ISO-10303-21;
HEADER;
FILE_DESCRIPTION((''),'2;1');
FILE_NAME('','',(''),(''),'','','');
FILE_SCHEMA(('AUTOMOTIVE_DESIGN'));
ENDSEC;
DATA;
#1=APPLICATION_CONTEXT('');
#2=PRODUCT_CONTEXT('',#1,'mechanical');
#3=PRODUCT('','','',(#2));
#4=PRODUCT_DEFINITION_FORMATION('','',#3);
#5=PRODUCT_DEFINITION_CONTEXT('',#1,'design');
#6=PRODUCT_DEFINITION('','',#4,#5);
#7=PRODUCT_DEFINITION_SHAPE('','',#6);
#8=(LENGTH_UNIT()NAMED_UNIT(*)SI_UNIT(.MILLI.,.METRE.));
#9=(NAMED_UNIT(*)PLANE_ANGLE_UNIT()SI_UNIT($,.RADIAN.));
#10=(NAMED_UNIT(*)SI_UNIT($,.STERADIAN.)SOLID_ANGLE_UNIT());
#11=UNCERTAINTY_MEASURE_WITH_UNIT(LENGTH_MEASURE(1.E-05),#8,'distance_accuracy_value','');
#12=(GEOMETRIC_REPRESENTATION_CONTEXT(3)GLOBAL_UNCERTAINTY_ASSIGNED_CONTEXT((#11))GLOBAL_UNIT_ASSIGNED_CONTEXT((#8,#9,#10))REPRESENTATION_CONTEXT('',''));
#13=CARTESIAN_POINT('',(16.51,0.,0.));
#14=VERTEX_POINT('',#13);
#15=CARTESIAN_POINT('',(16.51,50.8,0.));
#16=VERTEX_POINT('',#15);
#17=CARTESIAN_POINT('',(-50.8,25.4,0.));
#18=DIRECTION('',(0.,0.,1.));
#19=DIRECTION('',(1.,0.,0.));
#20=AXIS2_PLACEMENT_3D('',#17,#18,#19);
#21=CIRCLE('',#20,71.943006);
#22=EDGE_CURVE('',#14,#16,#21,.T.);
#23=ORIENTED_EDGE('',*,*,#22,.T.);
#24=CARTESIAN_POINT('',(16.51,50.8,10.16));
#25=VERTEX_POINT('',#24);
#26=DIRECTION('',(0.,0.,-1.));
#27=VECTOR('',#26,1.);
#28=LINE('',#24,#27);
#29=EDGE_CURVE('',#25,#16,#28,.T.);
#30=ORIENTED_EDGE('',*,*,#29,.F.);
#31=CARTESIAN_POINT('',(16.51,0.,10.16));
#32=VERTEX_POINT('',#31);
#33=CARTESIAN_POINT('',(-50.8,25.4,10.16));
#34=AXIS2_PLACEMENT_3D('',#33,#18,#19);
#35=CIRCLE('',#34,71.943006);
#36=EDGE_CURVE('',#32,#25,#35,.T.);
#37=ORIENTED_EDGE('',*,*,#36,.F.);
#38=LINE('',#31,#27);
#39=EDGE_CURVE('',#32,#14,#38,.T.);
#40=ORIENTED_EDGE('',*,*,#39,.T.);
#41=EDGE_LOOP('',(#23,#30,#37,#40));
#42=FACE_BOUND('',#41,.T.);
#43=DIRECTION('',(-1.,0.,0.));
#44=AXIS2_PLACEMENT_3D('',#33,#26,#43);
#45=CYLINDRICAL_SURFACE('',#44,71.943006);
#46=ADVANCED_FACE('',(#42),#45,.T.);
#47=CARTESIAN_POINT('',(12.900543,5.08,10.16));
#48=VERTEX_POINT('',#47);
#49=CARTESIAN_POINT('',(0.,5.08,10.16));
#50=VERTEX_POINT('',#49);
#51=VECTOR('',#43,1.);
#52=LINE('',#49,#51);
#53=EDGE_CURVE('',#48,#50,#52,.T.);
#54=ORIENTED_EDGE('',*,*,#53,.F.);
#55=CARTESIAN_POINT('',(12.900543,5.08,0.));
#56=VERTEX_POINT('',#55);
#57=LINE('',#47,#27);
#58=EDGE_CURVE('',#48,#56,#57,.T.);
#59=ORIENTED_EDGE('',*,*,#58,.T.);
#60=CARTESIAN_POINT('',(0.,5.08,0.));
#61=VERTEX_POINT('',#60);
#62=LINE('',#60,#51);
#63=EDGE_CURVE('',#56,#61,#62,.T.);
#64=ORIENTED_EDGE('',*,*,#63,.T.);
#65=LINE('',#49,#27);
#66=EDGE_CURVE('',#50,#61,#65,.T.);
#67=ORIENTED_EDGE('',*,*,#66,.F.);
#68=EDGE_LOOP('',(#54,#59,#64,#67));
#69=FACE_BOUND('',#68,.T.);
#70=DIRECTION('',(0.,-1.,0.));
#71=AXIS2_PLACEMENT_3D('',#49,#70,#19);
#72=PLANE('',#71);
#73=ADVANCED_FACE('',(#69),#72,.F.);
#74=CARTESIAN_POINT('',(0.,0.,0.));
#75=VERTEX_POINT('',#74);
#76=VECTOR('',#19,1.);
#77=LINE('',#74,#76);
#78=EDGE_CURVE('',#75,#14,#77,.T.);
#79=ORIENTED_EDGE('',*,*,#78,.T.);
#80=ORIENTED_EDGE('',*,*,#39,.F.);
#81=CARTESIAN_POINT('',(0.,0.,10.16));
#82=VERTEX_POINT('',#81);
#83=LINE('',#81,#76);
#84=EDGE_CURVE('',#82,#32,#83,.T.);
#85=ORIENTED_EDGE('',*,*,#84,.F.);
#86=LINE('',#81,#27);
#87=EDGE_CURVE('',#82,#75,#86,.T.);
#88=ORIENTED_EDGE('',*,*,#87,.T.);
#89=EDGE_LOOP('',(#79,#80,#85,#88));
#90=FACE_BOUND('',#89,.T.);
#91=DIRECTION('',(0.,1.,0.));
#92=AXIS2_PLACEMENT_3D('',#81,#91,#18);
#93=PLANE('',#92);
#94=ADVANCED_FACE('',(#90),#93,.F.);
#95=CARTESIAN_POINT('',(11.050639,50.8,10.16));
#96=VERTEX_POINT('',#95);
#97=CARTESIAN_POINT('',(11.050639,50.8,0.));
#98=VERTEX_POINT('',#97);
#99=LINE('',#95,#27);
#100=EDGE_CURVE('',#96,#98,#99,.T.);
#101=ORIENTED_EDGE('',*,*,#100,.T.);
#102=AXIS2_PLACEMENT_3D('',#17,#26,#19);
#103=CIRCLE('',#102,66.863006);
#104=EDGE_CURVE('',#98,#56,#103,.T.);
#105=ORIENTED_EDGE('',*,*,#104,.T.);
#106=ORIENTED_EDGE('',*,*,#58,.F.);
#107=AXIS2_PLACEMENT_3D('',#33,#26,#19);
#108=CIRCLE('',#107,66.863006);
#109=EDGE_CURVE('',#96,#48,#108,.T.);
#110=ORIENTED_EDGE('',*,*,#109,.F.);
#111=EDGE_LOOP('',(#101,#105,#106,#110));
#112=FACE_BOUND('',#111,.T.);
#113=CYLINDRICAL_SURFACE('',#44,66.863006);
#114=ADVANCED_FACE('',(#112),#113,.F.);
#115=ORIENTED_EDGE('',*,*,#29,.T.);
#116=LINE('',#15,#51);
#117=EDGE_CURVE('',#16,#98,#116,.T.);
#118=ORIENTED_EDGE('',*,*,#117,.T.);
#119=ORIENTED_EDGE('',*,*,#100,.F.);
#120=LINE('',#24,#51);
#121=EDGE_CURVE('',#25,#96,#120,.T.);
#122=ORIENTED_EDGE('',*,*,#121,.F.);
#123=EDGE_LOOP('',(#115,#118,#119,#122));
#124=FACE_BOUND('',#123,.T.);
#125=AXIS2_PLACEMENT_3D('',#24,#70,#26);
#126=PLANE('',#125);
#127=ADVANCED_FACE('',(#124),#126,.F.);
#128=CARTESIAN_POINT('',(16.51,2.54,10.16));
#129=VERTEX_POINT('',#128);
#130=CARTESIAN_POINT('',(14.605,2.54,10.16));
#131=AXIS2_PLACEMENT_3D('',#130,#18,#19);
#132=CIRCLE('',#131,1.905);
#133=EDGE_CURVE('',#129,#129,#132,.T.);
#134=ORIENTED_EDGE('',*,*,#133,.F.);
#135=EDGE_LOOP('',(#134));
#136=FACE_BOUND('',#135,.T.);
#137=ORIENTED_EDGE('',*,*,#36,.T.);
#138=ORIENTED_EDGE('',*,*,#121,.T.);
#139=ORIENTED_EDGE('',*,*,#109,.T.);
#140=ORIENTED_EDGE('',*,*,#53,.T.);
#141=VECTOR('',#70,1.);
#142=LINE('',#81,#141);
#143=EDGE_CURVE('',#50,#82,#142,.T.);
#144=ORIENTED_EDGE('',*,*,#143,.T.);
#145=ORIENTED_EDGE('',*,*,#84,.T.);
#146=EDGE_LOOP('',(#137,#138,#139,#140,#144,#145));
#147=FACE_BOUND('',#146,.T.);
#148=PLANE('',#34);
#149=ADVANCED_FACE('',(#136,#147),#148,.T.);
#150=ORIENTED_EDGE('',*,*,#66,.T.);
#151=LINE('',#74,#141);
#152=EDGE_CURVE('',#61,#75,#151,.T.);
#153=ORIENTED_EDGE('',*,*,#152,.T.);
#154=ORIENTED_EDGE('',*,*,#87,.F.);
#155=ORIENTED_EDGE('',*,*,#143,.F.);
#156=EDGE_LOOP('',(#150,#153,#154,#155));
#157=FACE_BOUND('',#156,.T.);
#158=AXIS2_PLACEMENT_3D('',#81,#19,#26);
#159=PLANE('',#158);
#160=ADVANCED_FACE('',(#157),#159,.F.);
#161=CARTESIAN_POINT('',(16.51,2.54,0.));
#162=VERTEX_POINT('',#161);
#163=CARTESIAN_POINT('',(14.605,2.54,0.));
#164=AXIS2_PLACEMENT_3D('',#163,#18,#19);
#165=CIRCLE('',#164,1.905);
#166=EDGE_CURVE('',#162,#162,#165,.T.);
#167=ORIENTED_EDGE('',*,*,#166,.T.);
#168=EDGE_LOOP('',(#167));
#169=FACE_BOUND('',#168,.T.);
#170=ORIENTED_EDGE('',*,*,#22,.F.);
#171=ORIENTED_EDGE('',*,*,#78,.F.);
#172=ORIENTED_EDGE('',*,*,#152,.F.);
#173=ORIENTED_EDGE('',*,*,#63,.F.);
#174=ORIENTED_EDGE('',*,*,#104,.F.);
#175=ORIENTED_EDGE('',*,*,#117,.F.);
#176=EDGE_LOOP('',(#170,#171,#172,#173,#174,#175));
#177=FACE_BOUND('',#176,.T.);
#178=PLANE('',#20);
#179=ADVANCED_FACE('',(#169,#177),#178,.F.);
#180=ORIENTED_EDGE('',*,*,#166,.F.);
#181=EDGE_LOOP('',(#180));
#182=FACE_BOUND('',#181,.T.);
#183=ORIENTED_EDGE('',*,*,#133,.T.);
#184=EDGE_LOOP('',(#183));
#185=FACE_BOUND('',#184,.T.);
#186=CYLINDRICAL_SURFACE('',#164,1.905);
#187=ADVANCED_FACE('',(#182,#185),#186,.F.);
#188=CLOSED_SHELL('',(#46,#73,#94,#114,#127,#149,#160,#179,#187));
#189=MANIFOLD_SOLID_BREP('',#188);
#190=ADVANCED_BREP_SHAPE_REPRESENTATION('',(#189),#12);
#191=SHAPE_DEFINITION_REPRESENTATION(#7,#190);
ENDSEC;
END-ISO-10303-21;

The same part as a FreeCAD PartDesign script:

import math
import FreeCAD as App
import Part
import Sketcher

V = App.Vector
Q = App.Units.Quantity

doc = App.newDocument("Part")
body = doc.addObject("PartDesign::Body", "Body")

sketch1 = body.newObject("Sketcher::SketchObject", "Sketch")
sketch1.AttachmentSupport = (doc.getObject("XY_Plane"), [""])
sketch1.MapMode = "FlatFace"
sketch1.addGeometry(Part.LineSegment(V(0, 0, 0), V(17, 0, 0)), False)
sketch1.addGeometry(Part.ArcOfCircle(Part.Circle(V(-51, 25, 0), V(0, 0, 1), 72), math.radians(-21), math.radians(21)), False)
sketch1.addGeometry(Part.LineSegment(V(17, 51, 0), V(11, 51, 0)), False)
sketch1.addGeometry(Part.ArcOfCircle(Part.Circle(V(-51, 25, 0), V(0, 0, 1), 67), math.radians(-18), math.radians(22)), False)
sketch1.addGeometry(Part.LineSegment(V(13, 5, 0), V(0, 5, 0)), False)
sketch1.addGeometry(Part.LineSegment(V(0, 5, 0), V(0, 0, 0)), False)
sketch1.addConstraint(Sketcher.Constraint("Coincident", 0, 2, 1, 1))
sketch1.addConstraint(Sketcher.Constraint("Coincident", 1, 2, 2, 1))
sketch1.addConstraint(Sketcher.Constraint("Coincident", 2, 2, 3, 2))
sketch1.addConstraint(Sketcher.Constraint("Coincident", 3, 1, 4, 1))
sketch1.addConstraint(Sketcher.Constraint("Coincident", 4, 2, 5, 1))
sketch1.addConstraint(Sketcher.Constraint("Coincident", 5, 2, 0, 1))
sketch1.addConstraint(Sketcher.Constraint("Horizontal", 0))
sketch1.addConstraint(Sketcher.Constraint("Horizontal", 2))
sketch1.addConstraint(Sketcher.Constraint("Horizontal", 4))
sketch1.addConstraint(Sketcher.Constraint("Vertical", 5))
sketch1.addConstraint(Sketcher.Constraint("Coincident", 5, 2, -1, 1))
sketch1.addConstraint(Sketcher.Constraint("Coincident", 3, 3, 1, 3))
sketch1.addConstraint(Sketcher.Constraint("Vertical", 0, 2, 1, 2))
sketch1.addConstraint(Sketcher.Constraint("DistanceY", 5, 2, 5, 1, Q("0.2 in")))
sketch1.addConstraint(Sketcher.Constraint("DistanceX", 1, 3, -1, 1, Q("2 in")))
sketch1.addConstraint(Sketcher.Constraint("DistanceY", -1, 1, 1, 3, Q("1 in")))
sketch1.addConstraint(Sketcher.Constraint("DistanceX", 0, 1, 0, 2, Q("0.65 in")))
sketch1.addConstraint(Sketcher.Constraint("Radius", 3, Q("66.863006 mm")))
pad1 = body.newObject("PartDesign::Pad", "Pad")
pad1.Profile = sketch1
pad1.Length = Q("0.4 in")

sketch2 = body.newObject("Sketcher::SketchObject", "Sketch001")
sketch2.AttachmentSupport = (doc.getObject("XY_Plane"), [""])
sketch2.MapMode = "FlatFace"
sketch2.AttachmentOffset = App.Placement(V(0, 0, 0.4 * 25.4), App.Rotation())
sketch2.addGeometry(Part.Circle(V(14.6, 2.5, 0), V(0, 0, 1), 1.9), False)
sketch2.addConstraint(Sketcher.Constraint("Diameter", 0, Q("0.15 in")))
sketch2.addConstraint(Sketcher.Constraint("DistanceY", -1, 1, 0, 3, Q("0.1 in")))
sketch2.addConstraint(Sketcher.Constraint("DistanceX", -1, 1, 0, 3, Q("0.575 in")))
pocket1 = body.newObject("PartDesign::Pocket", "Pocket")
pocket1.Profile = sketch2
pocket1.Type = "ThroughAll"
pocket1.Midplane = True

doc.recompute()
